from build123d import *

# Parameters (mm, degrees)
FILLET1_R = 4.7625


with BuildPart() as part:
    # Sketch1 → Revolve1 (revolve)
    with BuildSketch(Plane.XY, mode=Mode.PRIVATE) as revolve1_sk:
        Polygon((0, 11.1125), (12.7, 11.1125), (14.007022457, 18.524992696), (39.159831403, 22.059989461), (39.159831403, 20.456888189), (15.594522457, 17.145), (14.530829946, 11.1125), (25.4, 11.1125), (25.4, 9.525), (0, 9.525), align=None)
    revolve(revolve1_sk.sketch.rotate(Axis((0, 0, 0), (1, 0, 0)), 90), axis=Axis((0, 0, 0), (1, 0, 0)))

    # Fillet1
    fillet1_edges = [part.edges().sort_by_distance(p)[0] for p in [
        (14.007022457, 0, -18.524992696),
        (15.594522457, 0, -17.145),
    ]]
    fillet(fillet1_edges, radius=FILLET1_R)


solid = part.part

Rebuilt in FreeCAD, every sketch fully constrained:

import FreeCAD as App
import Part
import Sketcher
Q = App.Units.Quantity


def edges_at(feature, points):
    """Names of the edges that pass closest to the given points."""
    edges = feature.Shape.Edges
    near = lambda p: min(range(len(edges)), key=lambda i: edges[i].distToShape(Part.Vertex(*p))[0])
    return sorted({f"Edge{near(p) + 1}" for p in points})


def add_polygon(sketch, points):
    """Adds a closed chain of lines whose ends are joined by coincident constraints."""
    first, n = sketch.GeometryCount, len(points)
    for a, b in zip(points, points[1:] + points[:1]):
        sketch.addGeometry(Part.LineSegment(App.Vector(*a, 0), App.Vector(*b, 0)), False)
    for i in range(n):
        sketch.addConstraint(Sketcher.Constraint("Coincident", first + i, 2, first + (i + 1) % n, 1))

doc = App.newDocument("Part")
body = doc.addObject("PartDesign::Body", "Body")

# Sketch on XY plane
sketch1 = body.newObject("Sketcher::SketchObject", "Sketch")
sketch1.AttachmentSupport = (doc.getObject("XY_Plane"), [""])
sketch1.MapMode = "FlatFace"
add_polygon(sketch1, [(12.7, 11.1), (0, 11.1), (0, 9.5), (25.4, 9.5), (25.4, 11.1), (14.5, 11.1), (15.6, 17.1), (39.2, 20.5), (39.2, 22.1), (14, 18.5)])  # lines 0-9
sketch1.addConstraint([
    Sketcher.Constraint("Horizontal", 0),
    Sketcher.Constraint("Vertical", 1),
    Sketcher.Constraint("Horizontal", 2),
    Sketcher.Constraint("Vertical", 3),
    Sketcher.Constraint("Horizontal", 4),
    Sketcher.Constraint("Vertical", 7),
    Sketcher.Constraint("PointOnObject", 0, 2, -2),
    Sketcher.Constraint("Parallel", 6, 8),
    Sketcher.Constraint("Parallel", 5, 9),
    Sketcher.Constraint("Horizontal", 0, 2, 3, 2),
    Sketcher.Constraint("DistanceX", 2, 1, 2, 2, Q("1 in")),
    Sketcher.Constraint("Distance", 8, Q("1 in")),
    Sketcher.Constraint("DistanceX", 0, 2, 0, 1, Q("0.5 in")),
    Sketcher.Constraint("Angle", 5, Q("80 deg")),
    Sketcher.Constraint("Angle", 6, Q("8 deg")),
    Sketcher.Constraint("DistanceY", 2, 2, 5, 2, Q("0.3 in")),
    Sketcher.Constraint("DistanceY", 1, 2, 1, 1, Q("0.0625 in")),
    Sketcher.Constraint("DistanceY", -1, 1, 0, 2, Q("0.4375 in")),
    Sketcher.Constraint("DistanceX", 8, 2, 5, 2, Q("0.0625 in")),
    Sketcher.Constraint("DistanceY", 7, 1, 7, 2, Q("1.603101 mm")),
])
revolution = body.newObject("PartDesign::Revolution", "Revolution")
revolution.Profile = sketch1
revolution.ReferenceAxis = (sketch1, ["H_Axis"])
revolution.Angle = 360
doc.recompute()

fillet = body.newObject("PartDesign::Fillet", "Fillet")
fillet.Base = (revolution, edges_at(revolution, [(14.007, 0, -18.525), (15.595, 0, -17.145)]))
fillet.Radius = Q("0.1875 in")

doc.recompute()
